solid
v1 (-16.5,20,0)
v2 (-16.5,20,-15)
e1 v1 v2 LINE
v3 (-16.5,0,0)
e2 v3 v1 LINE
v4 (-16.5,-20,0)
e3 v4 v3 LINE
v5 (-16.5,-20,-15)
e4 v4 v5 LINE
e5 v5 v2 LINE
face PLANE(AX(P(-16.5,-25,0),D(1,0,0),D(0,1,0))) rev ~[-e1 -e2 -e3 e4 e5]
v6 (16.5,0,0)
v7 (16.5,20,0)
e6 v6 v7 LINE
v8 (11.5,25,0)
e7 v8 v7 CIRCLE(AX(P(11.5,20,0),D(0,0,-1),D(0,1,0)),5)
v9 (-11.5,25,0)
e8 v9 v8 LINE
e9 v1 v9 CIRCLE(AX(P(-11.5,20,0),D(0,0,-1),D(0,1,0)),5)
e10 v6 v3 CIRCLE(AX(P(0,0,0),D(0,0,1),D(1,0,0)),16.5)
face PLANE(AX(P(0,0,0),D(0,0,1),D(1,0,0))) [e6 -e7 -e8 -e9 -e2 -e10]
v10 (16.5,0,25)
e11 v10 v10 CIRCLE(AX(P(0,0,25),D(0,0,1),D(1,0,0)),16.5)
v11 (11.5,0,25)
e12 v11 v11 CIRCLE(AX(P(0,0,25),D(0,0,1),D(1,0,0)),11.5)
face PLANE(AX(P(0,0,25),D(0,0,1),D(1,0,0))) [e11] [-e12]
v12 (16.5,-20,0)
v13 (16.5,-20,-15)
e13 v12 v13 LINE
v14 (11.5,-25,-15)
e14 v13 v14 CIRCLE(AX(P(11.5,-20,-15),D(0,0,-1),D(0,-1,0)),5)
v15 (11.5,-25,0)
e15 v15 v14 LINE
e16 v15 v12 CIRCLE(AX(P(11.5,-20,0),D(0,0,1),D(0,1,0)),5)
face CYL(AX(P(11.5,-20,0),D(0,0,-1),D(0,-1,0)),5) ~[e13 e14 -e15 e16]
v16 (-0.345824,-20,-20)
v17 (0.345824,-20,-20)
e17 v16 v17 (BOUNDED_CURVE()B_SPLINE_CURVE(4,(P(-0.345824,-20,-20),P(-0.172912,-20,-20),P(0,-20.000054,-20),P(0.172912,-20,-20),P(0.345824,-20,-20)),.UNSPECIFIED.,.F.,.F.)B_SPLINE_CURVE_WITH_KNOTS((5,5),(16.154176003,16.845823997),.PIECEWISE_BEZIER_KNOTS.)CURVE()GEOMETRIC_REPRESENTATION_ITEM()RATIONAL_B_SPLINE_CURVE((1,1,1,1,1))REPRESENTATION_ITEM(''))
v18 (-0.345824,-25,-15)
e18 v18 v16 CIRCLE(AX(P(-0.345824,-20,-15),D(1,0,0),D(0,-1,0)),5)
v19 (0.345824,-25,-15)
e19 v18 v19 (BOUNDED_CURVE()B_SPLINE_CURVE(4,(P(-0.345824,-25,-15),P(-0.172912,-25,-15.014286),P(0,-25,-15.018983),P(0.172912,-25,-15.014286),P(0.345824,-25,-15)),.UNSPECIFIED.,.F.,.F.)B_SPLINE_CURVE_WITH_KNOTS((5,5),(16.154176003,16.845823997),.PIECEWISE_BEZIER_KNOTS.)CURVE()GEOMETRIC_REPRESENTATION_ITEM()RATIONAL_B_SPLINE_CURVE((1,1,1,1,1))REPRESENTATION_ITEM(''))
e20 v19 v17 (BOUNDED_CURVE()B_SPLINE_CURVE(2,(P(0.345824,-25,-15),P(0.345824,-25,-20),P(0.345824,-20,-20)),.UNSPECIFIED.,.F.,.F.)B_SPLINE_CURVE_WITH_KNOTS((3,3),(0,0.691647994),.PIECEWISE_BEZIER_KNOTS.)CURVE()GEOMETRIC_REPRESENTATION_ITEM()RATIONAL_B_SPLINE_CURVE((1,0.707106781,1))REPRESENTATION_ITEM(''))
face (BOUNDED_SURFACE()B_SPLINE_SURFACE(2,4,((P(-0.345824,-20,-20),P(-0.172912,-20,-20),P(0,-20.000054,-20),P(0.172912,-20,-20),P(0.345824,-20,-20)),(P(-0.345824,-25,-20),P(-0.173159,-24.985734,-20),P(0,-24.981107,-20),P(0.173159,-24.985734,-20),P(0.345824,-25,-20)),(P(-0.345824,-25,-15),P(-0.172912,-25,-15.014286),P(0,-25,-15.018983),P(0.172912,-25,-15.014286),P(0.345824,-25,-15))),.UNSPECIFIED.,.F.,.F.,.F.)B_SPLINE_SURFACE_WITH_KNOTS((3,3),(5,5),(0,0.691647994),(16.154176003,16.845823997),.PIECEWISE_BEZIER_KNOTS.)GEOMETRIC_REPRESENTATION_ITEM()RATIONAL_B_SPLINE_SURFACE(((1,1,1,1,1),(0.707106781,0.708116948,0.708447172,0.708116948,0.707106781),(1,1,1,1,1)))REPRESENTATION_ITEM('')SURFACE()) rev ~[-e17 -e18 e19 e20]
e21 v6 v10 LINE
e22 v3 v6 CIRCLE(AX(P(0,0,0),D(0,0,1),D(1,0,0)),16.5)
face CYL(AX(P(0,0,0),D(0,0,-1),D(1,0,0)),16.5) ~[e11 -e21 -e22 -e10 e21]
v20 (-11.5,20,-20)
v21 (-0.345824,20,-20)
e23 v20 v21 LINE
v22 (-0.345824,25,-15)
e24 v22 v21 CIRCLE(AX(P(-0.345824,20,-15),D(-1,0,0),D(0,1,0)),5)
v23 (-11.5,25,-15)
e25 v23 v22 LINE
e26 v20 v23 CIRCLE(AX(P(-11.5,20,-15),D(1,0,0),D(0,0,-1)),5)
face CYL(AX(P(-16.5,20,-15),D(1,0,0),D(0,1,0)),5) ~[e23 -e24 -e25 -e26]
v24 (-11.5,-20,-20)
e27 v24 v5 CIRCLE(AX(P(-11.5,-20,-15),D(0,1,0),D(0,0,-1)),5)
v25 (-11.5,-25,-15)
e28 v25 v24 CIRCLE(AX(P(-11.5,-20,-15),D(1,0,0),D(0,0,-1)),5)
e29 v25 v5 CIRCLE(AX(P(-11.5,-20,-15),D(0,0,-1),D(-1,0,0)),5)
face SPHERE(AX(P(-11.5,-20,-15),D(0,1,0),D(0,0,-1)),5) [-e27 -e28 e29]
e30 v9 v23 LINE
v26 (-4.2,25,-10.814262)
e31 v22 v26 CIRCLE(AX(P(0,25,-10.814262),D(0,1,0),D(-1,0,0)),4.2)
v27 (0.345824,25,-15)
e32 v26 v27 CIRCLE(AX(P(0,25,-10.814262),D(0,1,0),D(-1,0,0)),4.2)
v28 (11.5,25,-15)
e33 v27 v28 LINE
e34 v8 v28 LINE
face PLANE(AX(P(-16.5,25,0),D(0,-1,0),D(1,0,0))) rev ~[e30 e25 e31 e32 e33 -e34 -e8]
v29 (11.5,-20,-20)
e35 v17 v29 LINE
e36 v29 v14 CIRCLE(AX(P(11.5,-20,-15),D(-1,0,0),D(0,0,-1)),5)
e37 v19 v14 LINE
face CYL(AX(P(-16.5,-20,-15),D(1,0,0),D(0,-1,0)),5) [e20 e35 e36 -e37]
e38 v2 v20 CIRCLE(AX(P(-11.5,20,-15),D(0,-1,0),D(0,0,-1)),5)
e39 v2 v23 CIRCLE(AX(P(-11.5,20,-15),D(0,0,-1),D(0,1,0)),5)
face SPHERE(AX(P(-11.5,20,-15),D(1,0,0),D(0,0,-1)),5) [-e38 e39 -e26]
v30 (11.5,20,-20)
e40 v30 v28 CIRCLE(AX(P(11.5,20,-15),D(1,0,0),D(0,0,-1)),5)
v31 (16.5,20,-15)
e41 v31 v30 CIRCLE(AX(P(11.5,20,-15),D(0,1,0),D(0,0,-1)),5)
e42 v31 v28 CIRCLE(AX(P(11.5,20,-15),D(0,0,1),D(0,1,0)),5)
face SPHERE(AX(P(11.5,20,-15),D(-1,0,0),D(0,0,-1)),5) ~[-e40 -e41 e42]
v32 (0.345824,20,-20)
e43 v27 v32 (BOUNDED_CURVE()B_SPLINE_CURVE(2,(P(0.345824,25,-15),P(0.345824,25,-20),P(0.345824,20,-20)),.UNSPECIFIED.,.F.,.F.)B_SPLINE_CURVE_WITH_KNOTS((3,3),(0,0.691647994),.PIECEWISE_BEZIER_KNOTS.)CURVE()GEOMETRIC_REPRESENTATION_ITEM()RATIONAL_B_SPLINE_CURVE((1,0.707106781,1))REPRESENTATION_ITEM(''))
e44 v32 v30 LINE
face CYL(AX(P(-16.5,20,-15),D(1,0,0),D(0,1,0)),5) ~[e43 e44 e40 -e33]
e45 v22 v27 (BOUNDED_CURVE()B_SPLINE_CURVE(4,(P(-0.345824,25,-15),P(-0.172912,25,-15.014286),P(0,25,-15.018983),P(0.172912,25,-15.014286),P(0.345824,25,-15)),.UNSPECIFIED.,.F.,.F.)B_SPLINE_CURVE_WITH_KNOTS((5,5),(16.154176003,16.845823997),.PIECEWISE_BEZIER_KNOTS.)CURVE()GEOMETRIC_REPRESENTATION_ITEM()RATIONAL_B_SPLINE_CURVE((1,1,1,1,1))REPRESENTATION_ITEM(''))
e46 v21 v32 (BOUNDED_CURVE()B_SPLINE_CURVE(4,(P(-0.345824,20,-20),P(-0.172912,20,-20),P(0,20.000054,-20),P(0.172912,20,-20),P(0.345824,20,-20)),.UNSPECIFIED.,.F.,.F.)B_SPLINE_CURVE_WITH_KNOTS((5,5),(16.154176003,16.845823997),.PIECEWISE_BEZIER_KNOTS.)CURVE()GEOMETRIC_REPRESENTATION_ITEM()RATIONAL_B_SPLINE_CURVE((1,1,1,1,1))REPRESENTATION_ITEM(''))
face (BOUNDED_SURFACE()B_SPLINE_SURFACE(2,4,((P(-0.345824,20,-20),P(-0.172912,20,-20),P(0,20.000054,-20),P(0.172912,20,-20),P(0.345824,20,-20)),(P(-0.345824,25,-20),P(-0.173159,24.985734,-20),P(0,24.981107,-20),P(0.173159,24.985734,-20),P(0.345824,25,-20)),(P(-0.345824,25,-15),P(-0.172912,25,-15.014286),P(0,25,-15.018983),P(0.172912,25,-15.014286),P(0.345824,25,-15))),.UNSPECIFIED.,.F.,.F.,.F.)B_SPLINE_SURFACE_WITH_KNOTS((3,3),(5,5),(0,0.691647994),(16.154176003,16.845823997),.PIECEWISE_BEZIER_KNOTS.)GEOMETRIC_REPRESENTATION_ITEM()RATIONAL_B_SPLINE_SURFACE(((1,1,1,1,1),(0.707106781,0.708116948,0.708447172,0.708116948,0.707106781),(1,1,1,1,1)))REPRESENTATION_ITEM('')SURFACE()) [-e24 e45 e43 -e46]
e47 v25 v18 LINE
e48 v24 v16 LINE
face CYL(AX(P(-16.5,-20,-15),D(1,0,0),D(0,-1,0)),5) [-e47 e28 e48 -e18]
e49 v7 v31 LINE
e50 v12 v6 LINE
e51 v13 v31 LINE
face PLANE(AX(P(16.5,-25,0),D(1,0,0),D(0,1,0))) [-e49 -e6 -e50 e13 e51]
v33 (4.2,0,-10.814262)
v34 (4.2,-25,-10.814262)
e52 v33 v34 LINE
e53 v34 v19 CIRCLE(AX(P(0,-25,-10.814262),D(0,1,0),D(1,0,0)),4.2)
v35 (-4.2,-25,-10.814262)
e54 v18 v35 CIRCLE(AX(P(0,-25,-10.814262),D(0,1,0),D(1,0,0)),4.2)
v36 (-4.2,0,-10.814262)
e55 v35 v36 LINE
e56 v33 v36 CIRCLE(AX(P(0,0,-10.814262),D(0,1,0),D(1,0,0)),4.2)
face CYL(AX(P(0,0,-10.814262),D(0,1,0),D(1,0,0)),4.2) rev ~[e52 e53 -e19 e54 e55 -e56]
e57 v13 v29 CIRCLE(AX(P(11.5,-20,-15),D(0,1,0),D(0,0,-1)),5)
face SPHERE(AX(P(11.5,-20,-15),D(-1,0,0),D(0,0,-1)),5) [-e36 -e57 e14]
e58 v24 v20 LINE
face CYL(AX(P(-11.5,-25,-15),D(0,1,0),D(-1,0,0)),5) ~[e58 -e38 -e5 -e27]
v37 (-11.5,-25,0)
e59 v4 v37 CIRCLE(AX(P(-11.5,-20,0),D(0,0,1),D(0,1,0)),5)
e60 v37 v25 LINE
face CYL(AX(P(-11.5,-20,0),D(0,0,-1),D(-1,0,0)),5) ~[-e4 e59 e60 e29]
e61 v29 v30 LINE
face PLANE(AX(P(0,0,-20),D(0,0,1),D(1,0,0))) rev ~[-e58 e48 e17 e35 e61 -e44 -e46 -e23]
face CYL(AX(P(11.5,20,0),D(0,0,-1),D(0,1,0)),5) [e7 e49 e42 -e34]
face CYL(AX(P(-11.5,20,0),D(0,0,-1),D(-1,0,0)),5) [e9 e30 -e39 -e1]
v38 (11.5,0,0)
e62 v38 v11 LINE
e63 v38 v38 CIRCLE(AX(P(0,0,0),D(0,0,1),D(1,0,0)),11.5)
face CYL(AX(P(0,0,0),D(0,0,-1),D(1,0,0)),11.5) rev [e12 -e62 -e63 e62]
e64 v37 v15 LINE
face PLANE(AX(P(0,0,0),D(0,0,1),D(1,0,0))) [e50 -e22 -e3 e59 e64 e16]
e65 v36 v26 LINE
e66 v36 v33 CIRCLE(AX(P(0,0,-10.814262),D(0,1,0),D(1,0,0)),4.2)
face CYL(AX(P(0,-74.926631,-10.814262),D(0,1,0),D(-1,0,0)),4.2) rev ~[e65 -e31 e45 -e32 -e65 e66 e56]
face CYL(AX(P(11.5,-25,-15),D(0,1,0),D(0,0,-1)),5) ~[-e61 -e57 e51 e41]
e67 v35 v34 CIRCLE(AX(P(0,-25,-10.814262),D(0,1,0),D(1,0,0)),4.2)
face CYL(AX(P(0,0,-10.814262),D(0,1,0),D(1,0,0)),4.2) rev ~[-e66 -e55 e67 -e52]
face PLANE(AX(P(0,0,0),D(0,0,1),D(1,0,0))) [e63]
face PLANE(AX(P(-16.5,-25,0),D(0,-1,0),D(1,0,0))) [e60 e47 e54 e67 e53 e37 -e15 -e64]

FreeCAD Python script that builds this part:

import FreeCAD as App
import Part
import Sketcher
from FreeCAD import Vector
Q = App.Units.Quantity


def edges_at(feature, points):
    """Names of the edges that pass closest to the given points."""
    edges = feature.Shape.Edges
    near = lambda p: min(range(len(edges)), key=lambda i: edges[i].distToShape(Part.Vertex(*p))[0])
    return sorted({f"Edge{near(p) + 1}" for p in points})


def add_polygon(sketch, points):
    """Adds a closed chain of lines whose ends are joined by coincident constraints."""
    first, n = sketch.GeometryCount, len(points)
    for a, b in zip(points, points[1:] + points[:1]):
        sketch.addGeometry(Part.LineSegment(App.Vector(*a, 0), App.Vector(*b, 0)), False)
    for i in range(n):
        sketch.addConstraint(Sketcher.Constraint("Coincident", first + i, 2, first + (i + 1) % n, 1))

doc = App.newDocument("Part")
body = doc.addObject("PartDesign::Body", "Body")

# Sketch on XY plane
sketch1 = doc.addObject("Sketcher::SketchObject", "Sketch")
body.addObject(sketch1)
sketch1.AttachmentSupport = (doc.XY_Plane, [""])
sketch1.MapMode = "FlatFace"
sketch1.addGeometry([
    Part.Circle(Vector(0, 0, 0), Vector(0, 0, 1), 16),
    Part.Circle(Vector(0, 0, 0), Vector(0, 0, 1), 12),
], False)
sketch1.addConstraint([
    Sketcher.Constraint("Coincident", 0, 3, -1, 1),
    Sketcher.Constraint("Coincident", 1, 3, -1, 1),
    Sketcher.Constraint("Diameter", 0, Q("33 mm")),
    Sketcher.Constraint("Diameter", 1, Q("23 mm")),
])
pad1 = doc.addObject("PartDesign::Pad", "Pad")
body.addObject(pad1)
pad1.Profile = sketch1
pad1.Length = 25

# Sketch on XY plane
sketch2 = doc.addObject("Sketcher::SketchObject", "Sketch001")
body.addObject(sketch2)
sketch2.AttachmentSupport = (doc.XY_Plane, [""])
sketch2.MapMode = "FlatFace"
add_polygon(sketch2, [(-16, 25), (-16, -25), (16, -25), (16, 25)])  # lines 0-3
sketch2.addConstraint([
    Sketcher.Constraint("Vertical", 0),
    Sketcher.Constraint("Horizontal", 1),
    Sketcher.Constraint("Vertical", 2),
    Sketcher.Constraint("Horizontal", 3),
    Sketcher.Constraint("Symmetric", 0, 2, 2, 2, -1, 1),
    Sketcher.Constraint("DistanceX", 1, 1, 1, 2, Q("33 mm")),
    Sketcher.Constraint("DistanceY", 0, 2, 0, 1, Q("50 mm")),
])
pad2 = doc.addObject("PartDesign::Pad", "Pad001")
body.addObject(pad2)
pad2.Profile = sketch2
pad2.Length = 20
pad2.Reversed = True

# Sketch on XZ plane
sketch3 = doc.addObject("Sketcher::SketchObject", "Sketch002")
body.addObject(sketch3)
sketch3.AttachmentSupport = (doc.XZ_Plane, [""])
sketch3.MapMode = "FlatFace"
sketch3.addGeometry(Part.Circle(Vector(0, -10.8, 0), Vector(0, 0, 1), 4.2), False)
sketch3.addConstraint([
    Sketcher.Constraint("PointOnObject", 0, 3, -2),
    Sketcher.Constraint("Diameter", 0, Q("8.4 mm")),
    Sketcher.Constraint("DistanceY", 0, 3, -1, 1, Q("10.814262 mm")),
])
pocket1 = doc.addObject("PartDesign::Pocket", "Pocket")
body.addObject(pocket1)
pocket1.Profile = sketch3
pocket1.Type = "ThroughAll"
pocket1.Reversed = True

# Sketch on XZ plane
sketch4 = doc.addObject("Sketcher::SketchObject", "Sketch003")
body.addObject(sketch4)
sketch4.AttachmentSupport = (doc.XZ_Plane, [""])
sketch4.MapMode = "FlatFace"
sketch4.addGeometry(Part.Circle(Vector(0, -10.8, 0), Vector(0, 0, 1), 4.2), False)
sketch4.addConstraint([
    Sketcher.Constraint("PointOnObject", 0, 3, -2),
    Sketcher.Constraint("Diameter", 0, Q("8.4 mm")),
    Sketcher.Constraint("DistanceY", 0, 3, -1, 1, Q("10.814262 mm")),
])
doc.recompute()
hole = doc.addObject("PartDesign::Hole", "Hole")
body.addObject(hole)
hole.Profile = sketch4
hole.ThreadType = "None"
hole.Diameter = 8.4
hole.DepthType = "ThroughAll"
doc.recompute()

fillet = doc.addObject("PartDesign::Fillet", "Fillet")
body.addObject(fillet)
fillet.Base = (hole, edges_at(hole, [
    (0, 25, -20),
    (-16.5, 0, -20),
    (0, -25, -20),
    (16.5, 0, -20),
    (-16.5, 25, -10),
    (16.5, 25, -10),
    (16.5, -25, -10),
    (-16.5, -25, -10),
]))
fillet.Radius = 5

doc.recompute()
